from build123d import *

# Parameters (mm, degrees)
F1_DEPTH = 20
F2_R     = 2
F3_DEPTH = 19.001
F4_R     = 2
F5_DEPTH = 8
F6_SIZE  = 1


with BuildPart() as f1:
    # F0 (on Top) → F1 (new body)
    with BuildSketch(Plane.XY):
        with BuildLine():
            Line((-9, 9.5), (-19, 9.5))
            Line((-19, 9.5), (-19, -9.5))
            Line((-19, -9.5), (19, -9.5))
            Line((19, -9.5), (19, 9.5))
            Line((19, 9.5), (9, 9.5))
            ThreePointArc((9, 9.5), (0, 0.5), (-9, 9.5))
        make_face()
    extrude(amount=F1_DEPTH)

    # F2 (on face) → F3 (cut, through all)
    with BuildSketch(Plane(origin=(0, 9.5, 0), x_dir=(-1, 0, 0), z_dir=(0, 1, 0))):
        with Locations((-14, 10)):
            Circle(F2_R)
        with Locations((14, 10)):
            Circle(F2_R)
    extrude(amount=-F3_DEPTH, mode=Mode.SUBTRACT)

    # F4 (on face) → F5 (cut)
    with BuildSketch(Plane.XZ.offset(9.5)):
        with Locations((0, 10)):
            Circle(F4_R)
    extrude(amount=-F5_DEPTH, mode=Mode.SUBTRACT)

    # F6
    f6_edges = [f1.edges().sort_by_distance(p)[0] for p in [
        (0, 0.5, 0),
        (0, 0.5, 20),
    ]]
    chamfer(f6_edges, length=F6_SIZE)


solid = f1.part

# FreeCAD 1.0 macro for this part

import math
import FreeCAD as App
import Part
import Sketcher
Q = App.Units.Quantity


def edges_at(feature, points):
    """Names of the edges that pass closest to the given points."""
    edges = feature.Shape.Edges
    near = lambda p: min(range(len(edges)), key=lambda i: edges[i].distToShape(Part.Vertex(*p))[0])
    return sorted({f"Edge{near(p) + 1}" for p in points})

doc = App.newDocument("Part")
params = doc.addObject("Spreadsheet::Sheet", "Params")
for row, (alias, value) in enumerate([
    ("sketch1_radius", "9 mm"),
    ("sketch1_width", "10 mm"),
    ("sketch1_height", "19 mm"),
    ("pad1_length", "20 mm"),
    ("sketch2_diameter", "4 mm"),
    ("sketch3_diameter", "4 mm"),
    ("pocket2_length", "8 mm"),
    ("chamfer_size", "1 mm"),
], start=1):
    params.set(f"A{row}", alias)
    params.set(f"B{row}", "=" + value)
    params.setAlias(f"B{row}", alias)

body = doc.addObject("PartDesign::Body", "Body")

# Sketch on XY plane
sketch1 = doc.addObject("Sketcher::SketchObject", "Sketch")
body.addObject(sketch1)
sketch1.AttachmentSupport = (doc.XY_Plane, [""])
sketch1.MapMode = "FlatFace"
sketch1.addGeometry(Part.LineSegment(App.Vector(-9, 10, 0), App.Vector(-19, 10, 0)), False)
sketch1.addGeometry(Part.LineSegment(App.Vector(-19, 10, 0), App.Vector(-19, -10, 0)), False)
sketch1.addGeometry(Part.LineSegment(App.Vector(-19, -10, 0), App.Vector(19, -10, 0)), False)
sketch1.addGeometry(Part.LineSegment(App.Vector(19, -10, 0), App.Vector(19, 10, 0)), False)
sketch1.addGeometry(Part.LineSegment(App.Vector(19, 10, 0), App.Vector(9, 10, 0)), False)
sketch1.addGeometry(Part.ArcOfCircle(Part.Circle(App.Vector(0, 10, 0), App.Vector(0, 0, 1), 9), math.radians(180), math.radians(360)), False)
sketch1.addConstraint(Sketcher.Constraint("Coincident", 0, 2, 1, 1))
sketch1.addConstraint(Sketcher.Constraint("Coincident", 1, 2, 2, 1))
sketch1.addConstraint(Sketcher.Constraint("Coincident", 2, 2, 3, 1))
sketch1.addConstraint(Sketcher.Constraint("Coincident", 3, 2, 4, 1))
sketch1.addConstraint(Sketcher.Constraint("Coincident", 4, 2, 5, 2))
sketch1.addConstraint(Sketcher.Constraint("Coincident", 5, 1, 0, 1))
sketch1.addConstraint(Sketcher.Constraint("Horizontal", 0))
sketch1.addConstraint(Sketcher.Constraint("Vertical", 1))
sketch1.addConstraint(Sketcher.Constraint("Horizontal", 2))
sketch1.addConstraint(Sketcher.Constraint("Vertical", 3))
sketch1.addConstraint(Sketcher.Constraint("Horizontal", 4))
sketch1.addConstraint(Sketcher.Constraint("Symmetric", 0, 2, 2, 2, -1, 1))
sketch1.addConstraint(Sketcher.Constraint("Symmetric", 4, 2, 5, 1, -2))
sketch1.addConstraint(Sketcher.Constraint("Horizontal", 5, 3, 0, 2))
sketch1.addConstraint(Sketcher.Constraint("Radius", 5, Q("9 mm")))
sketch1.addConstraint(Sketcher.Constraint("DistanceX", 0, 2, 0, 1, Q("10 mm")))
sketch1.addConstraint(Sketcher.Constraint("DistanceY", 1, 2, 1, 1, Q("19 mm")))
sketch1.setExpression("Constraints[14]", "Params.sketch1_radius")
sketch1.setExpression("Constraints[15]", "Params.sketch1_width")
sketch1.setExpression("Constraints[16]", "Params.sketch1_height")
pad1 = doc.addObject("PartDesign::Pad", "Pad")
body.addObject(pad1)
pad1.Profile = sketch1
pad1.setExpression("Length", "Params.pad1_length")

# Sketch on XZ plane
sketch2 = doc.addObject("Sketcher::SketchObject", "Sketch001")
body.addObject(sketch2)
sketch2.AttachmentSupport = (doc.XZ_Plane, [""])
sketch2.MapMode = "FlatFace"
sketch2.AttachmentOffset = App.Placement(App.Vector(0, 0, -9.5), App.Rotation())
sketch2.addGeometry(Part.Circle(App.Vector(14, 10, 0), App.Vector(0, 0, 1), 2), False)
sketch2.addGeometry(Part.Circle(App.Vector(-14, 10, 0), App.Vector(0, 0, 1), 2), False)
sketch2.addConstraint(Sketcher.Constraint("Equal", 0, 1))
sketch2.addConstraint(Sketcher.Constraint("Symmetric", 0, 3, 1, 3, -2))
sketch2.addConstraint(Sketcher.Constraint("Diameter", 0, Q("4 mm")))
sketch2.addConstraint(Sketcher.Constraint("DistanceX", -1, 1, 0, 3, Q("14 mm")))
sketch2.addConstraint(Sketcher.Constraint("DistanceY", -1, 1, 0, 3, Q("10 mm")))
sketch2.setExpression("Constraints[2]", "Params.sketch2_diameter")
pocket1 = doc.addObject("PartDesign::Pocket", "Pocket")
body.addObject(pocket1)
pocket1.Profile = sketch2
pocket1.Type = "ThroughAll"
pocket1.Reversed = True

# Sketch on XZ plane
sketch3 = doc.addObject("Sketcher::SketchObject", "Sketch002")
body.addObject(sketch3)
sketch3.AttachmentSupport = (doc.XZ_Plane, [""])
sketch3.MapMode = "FlatFace"
sketch3.AttachmentOffset = App.Placement(App.Vector(0, 0, 9.5), App.Rotation())
sketch3.addGeometry(Part.Circle(App.Vector(0, 10, 0), App.Vector(0, 0, 1), 2), False)
sketch3.addConstraint(Sketcher.Constraint("PointOnObject", 0, 3, -2))
sketch3.addConstraint(Sketcher.Constraint("Diameter", 0, Q("4 mm")))
sketch3.addConstraint(Sketcher.Constraint("DistanceY", -1, 1, 0, 3, Q("10 mm")))
sketch3.setExpression("Constraints[1]", "Params.sketch3_diameter")
pocket2 = doc.addObject("PartDesign::Pocket", "Pocket001")
body.addObject(pocket2)
pocket2.Profile = sketch3
pocket2.setExpression("Length", "Params.pocket2_length")
doc.recompute()

chamfer = doc.addObject("PartDesign::Chamfer", "Chamfer")
body.addObject(chamfer)
chamfer.Base = (pocket2, edges_at(pocket2, [(0, 0.5, 0), (0, 0.5, 20)]))
chamfer.setExpression("Size", "Params.chamfer_size")

doc.recompute()
